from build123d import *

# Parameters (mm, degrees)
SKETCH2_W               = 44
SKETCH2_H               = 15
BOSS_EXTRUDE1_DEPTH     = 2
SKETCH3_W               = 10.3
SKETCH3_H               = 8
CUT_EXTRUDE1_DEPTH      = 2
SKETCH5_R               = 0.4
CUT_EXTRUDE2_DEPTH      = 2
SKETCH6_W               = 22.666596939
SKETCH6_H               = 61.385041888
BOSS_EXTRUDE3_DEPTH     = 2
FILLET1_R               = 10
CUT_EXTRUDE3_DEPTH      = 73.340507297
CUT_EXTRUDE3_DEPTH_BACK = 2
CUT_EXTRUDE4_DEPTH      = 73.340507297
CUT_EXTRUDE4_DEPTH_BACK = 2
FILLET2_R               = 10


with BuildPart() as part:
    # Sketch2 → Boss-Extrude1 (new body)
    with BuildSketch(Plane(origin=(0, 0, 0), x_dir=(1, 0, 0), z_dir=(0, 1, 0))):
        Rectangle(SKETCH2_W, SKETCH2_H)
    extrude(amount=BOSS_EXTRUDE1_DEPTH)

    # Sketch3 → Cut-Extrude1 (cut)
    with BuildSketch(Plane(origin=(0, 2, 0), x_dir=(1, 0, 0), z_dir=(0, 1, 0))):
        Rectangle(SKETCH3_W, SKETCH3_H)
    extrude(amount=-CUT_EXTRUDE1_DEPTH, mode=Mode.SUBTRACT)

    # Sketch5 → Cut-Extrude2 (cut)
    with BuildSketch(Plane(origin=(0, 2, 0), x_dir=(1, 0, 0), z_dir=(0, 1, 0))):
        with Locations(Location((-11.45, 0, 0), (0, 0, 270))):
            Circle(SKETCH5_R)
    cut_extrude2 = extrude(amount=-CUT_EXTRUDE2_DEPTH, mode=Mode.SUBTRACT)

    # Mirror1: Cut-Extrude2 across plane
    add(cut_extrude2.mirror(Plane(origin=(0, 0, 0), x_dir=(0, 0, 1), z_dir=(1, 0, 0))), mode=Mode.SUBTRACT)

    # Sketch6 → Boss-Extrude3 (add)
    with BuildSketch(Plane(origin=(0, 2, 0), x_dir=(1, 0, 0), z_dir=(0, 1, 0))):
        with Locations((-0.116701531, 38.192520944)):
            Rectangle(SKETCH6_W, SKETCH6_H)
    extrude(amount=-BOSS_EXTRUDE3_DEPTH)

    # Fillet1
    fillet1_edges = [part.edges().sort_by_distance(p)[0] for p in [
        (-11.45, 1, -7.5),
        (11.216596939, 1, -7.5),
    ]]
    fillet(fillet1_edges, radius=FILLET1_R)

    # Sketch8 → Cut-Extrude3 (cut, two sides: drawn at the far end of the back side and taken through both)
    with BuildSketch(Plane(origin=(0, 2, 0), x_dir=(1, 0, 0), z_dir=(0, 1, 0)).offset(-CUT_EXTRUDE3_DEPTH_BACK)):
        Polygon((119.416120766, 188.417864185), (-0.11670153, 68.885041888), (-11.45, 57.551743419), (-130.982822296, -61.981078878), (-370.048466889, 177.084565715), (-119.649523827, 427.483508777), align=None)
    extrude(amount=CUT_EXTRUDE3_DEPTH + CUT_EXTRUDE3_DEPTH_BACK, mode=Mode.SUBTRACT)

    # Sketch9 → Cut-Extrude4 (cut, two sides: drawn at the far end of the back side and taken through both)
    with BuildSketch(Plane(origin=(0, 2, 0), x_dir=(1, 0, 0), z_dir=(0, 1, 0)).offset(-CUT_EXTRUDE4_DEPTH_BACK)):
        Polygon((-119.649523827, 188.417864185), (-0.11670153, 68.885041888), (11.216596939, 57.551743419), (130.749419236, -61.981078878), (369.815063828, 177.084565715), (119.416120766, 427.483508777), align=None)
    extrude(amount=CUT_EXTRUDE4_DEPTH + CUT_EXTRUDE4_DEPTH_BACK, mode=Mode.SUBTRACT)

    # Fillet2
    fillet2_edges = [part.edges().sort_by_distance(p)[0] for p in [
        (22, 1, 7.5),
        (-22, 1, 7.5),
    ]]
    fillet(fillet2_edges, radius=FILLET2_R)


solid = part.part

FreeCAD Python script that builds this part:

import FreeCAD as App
import Part
import Sketcher

V = App.Vector
Q = App.Units.Quantity


def edges_at(feature, points):
    """Names of the edges that pass closest to the given points."""
    edges = feature.Shape.Edges
    near = lambda p: min(range(len(edges)), key=lambda i: edges[i].distToShape(Part.Vertex(*p))[0])
    return sorted({f"Edge{near(p) + 1}" for p in points})

doc = App.newDocument("Part")
params = doc.addObject("Spreadsheet::Sheet", "Params")
for row, (alias, value) in enumerate([
    ("sketch1_width", "44 mm"),
    ("sketch1_height", "15 mm"),
    ("pad1_length", "2 mm"),
    ("sketch2_height", "8 mm"),
    ("sketch2_width", "10.3 mm"),
    ("pocket1_length", "2 mm"),
    ("sketch3_diameter", "0.8 mm"),
    ("pocket2_length", "2 mm"),
    ("pad2_length", "2 mm"),
    ("fillet_radius", "10 mm"),
    ("fillet2_radius", "10 mm"),
], start=1):
    params.set(f"A{row}", alias)
    params.set(f"B{row}", "=" + value)
    params.setAlias(f"B{row}", alias)

body = doc.addObject("PartDesign::Body", "Body")

sketch1 = body.newObject("Sketcher::SketchObject", "Sketch")
sketch1.AttachmentSupport = (doc.getObject("XZ_Plane"), [""])
sketch1.MapMode = "FlatFace"
sketch1.addGeometry([
    Part.LineSegment(V(-22, -7.5, 0), V(-22, 7.5, 0)),
    Part.LineSegment(V(-22, 7.5, 0), V(22, 7.5, 0)),
    Part.LineSegment(V(22, 7.5, 0), V(22, -7.5, 0)),
    Part.LineSegment(V(22, -7.5, 0), V(-22, -7.5, 0)),
], False)
sketch1.addConstraint([
    Sketcher.Constraint("Coincident", 0, 2, 1, 1),
    Sketcher.Constraint("Coincident", 1, 2, 2, 1),
    Sketcher.Constraint("Coincident", 2, 2, 3, 1),
    Sketcher.Constraint("Coincident", 3, 2, 0, 1),
    Sketcher.Constraint("Vertical", 0),
    Sketcher.Constraint("Horizontal", 1),
    Sketcher.Constraint("Vertical", 2),
    Sketcher.Constraint("Horizontal", 3),
    Sketcher.Constraint("Symmetric", 0, 2, 2, 2, -1, 1),
    Sketcher.Constraint("DistanceX", 1, 1, 1, 2, 44.0),
    Sketcher.Constraint("DistanceY", 0, 1, 0, 2, 15.0),
])
sketch1.setExpression("Constraints[9]", "Params.sketch1_width")
sketch1.setExpression("Constraints[10]", "Params.sketch1_height")
pad1 = body.newObject("PartDesign::Pad", "Pad")
pad1.Profile = sketch1
pad1.setExpression("Length", "Params.pad1_length")
pad1.Reversed = True

sketch2 = body.newObject("Sketcher::SketchObject", "Sketch001")
sketch2.AttachmentSupport = (doc.getObject("XZ_Plane"), [""])
sketch2.MapMode = "FlatFace"
sketch2.AttachmentOffset = App.Placement(V(0, 0, -2), App.Rotation())
sketch2.addGeometry([
    Part.LineSegment(V(-5.15, -4, 0), V(-5.15, 4, 0)),
    Part.LineSegment(V(-5.15, 4, 0), V(5.15, 4, 0)),
    Part.LineSegment(V(5.15, 4, 0), V(5.15, -4, 0)),
    Part.LineSegment(V(5.15, -4, 0), V(-5.15, -4, 0)),
], False)
sketch2.addConstraint([
    Sketcher.Constraint("Coincident", 0, 2, 1, 1),
    Sketcher.Constraint("Coincident", 1, 2, 2, 1),
    Sketcher.Constraint("Coincident", 2, 2, 3, 1),
    Sketcher.Constraint("Coincident", 3, 2, 0, 1),
    Sketcher.Constraint("Vertical", 0),
    Sketcher.Constraint("Horizontal", 1),
    Sketcher.Constraint("Vertical", 2),
    Sketcher.Constraint("Horizontal", 3),
    Sketcher.Constraint("Symmetric", 0, 2, 2, 2, -1, 1),
    Sketcher.Constraint("DistanceY", 0, 1, 0, 2, 8.0),
    Sketcher.Constraint("DistanceX", 1, 1, 1, 2, 10.3),
])
sketch2.setExpression("Constraints[9]", "Params.sketch2_height")
sketch2.setExpression("Constraints[10]", "Params.sketch2_width")
pocket1 = body.newObject("PartDesign::Pocket", "Pocket")
pocket1.Profile = sketch2
pocket1.setExpression("Length", "Params.pocket1_length")
pocket1.Reversed = True

sketch3 = body.newObject("Sketcher::SketchObject", "Sketch002")
sketch3.AttachmentSupport = (doc.getObject("XZ_Plane"), [""])
sketch3.MapMode = "FlatFace"
sketch3.AttachmentOffset = App.Placement(V(0, 0, -2), App.Rotation())
sketch3.addGeometry(Part.Circle(V(-11.45, 0, 0), V(0, 0, 1), 0.4), False)
sketch3.addConstraint([
    Sketcher.Constraint("PointOnObject", 0, 3, -1),
    Sketcher.Constraint("Diameter", 0, 0.8),
    Sketcher.Constraint("DistanceX", 0, 3, -1, 1, 11.45),
])
sketch3.setExpression("Constraints[1]", "Params.sketch3_diameter")
pocket2 = body.newObject("PartDesign::Pocket", "Pocket001")
pocket2.Profile = sketch3
pocket2.setExpression("Length", "Params.pocket2_length")
pocket2.Reversed = True
doc.recompute()

mirrored = body.newObject("PartDesign::Mirrored", "Mirrored")
mirrored.Originals = [pocket2]
mirrored.MirrorPlane = (doc.getObject("YZ_Plane"), [""])
body.Tip = mirrored

sketch4 = body.newObject("Sketcher::SketchObject", "Sketch003")
sketch4.AttachmentSupport = (doc.getObject("XZ_Plane"), [""])
sketch4.MapMode = "FlatFace"
sketch4.AttachmentOffset = App.Placement(V(0, 0, -2), App.Rotation())
sketch4.addGeometry([
    Part.LineSegment(V(-11.45, -68.885042, 0), V(-11.45, -7.5, 0)),
    Part.LineSegment(V(-11.45, -7.5, 0), V(11.216597, -7.5, 0)),
    Part.LineSegment(V(11.216597, -7.5, 0), V(11.216597, -68.885042, 0)),
    Part.LineSegment(V(11.216597, -68.885042, 0), V(-11.45, -68.885042, 0)),
], False)
sketch4.addConstraint([
    Sketcher.Constraint("Coincident", 0, 2, 1, 1),
    Sketcher.Constraint("Coincident", 1, 2, 2, 1),
    Sketcher.Constraint("Coincident", 2, 2, 3, 1),
    Sketcher.Constraint("Coincident", 3, 2, 0, 1),
    Sketcher.Constraint("Vertical", 0),
    Sketcher.Constraint("Horizontal", 1),
    Sketcher.Constraint("Vertical", 2),
    Sketcher.Constraint("Horizontal", 3),
    Sketcher.Constraint("DistanceY", 0, 2, -1, 1, 7.5),
    Sketcher.Constraint("DistanceX", 0, 2, -1, 1, 11.45),
    Sketcher.Constraint("DistanceY", 0, 1, 0, 2, 61.385042),
    Sketcher.Constraint("DistanceX", 1, 1, 1, 2, 22.666597),
])
pad2 = body.newObject("PartDesign::Pad", "Pad001")
pad2.Profile = sketch4
pad2.setExpression("Length", "Params.pad2_length")
doc.recompute()

fillet = body.newObject("PartDesign::Fillet", "Fillet")
fillet.Base = (pad2, edges_at(pad2, [(-11.45, 1, -7.5), (11.217, 1, -7.5)]))
fillet.setExpression("Radius", "Params.fillet_radius")

sketch5 = body.newObject("Sketcher::SketchObject", "Sketch004")
sketch5.AttachmentSupport = (doc.getObject("XZ_Plane"), [""])
sketch5.MapMode = "FlatFace"
sketch5.AttachmentOffset = App.Placement(V(0, 0, -2), App.Rotation())
sketch5.addGeometry([
    Part.LineSegment(V(-0.116702, -68.885042, 0), V(119.416121, -188.417864, 0)),
    Part.LineSegment(V(119.416121, -188.417864, 0), V(-119.649524, -427.483509, 0)),
    Part.LineSegment(V(-119.649524, -427.483509, 0), V(-370.048467, -177.084566, 0)),
    Part.LineSegment(V(-370.048467, -177.084566, 0), V(-130.982822, 61.981079, 0)),
    Part.LineSegment(V(-130.982822, 61.981079, 0), V(-11.45, -57.551743, 0)),
    Part.LineSegment(V(-11.45, -57.551743, 0), V(-0.116702, -68.885042, 0)),
], False)
sketch5.addConstraint([
    Sketcher.Constraint("Coincident", 0, 2, 1, 1),
    Sketcher.Constraint("Coincident", 1, 2, 2, 1),
    Sketcher.Constraint("Coincident", 2, 2, 3, 1),
    Sketcher.Constraint("Coincident", 3, 2, 4, 1),
    Sketcher.Constraint("Coincident", 4, 2, 5, 1),
    Sketcher.Constraint("Coincident", 5, 2, 0, 1),
    Sketcher.Constraint("Perpendicular", 0, 1),
    Sketcher.Constraint("Perpendicular", 1, 2),
    Sketcher.Constraint("Perpendicular", 2, 3),
    Sketcher.Constraint("Perpendicular", 3, 4),
    Sketcher.Constraint("Parallel", 4, 5),
    Sketcher.Constraint("Equal", 0, 4),
    Sketcher.Constraint("Angle", 0, Q("-45 deg")),
    Sketcher.Constraint("DistanceX", 4, 2, -1, 1, 11.45),
    Sketcher.Constraint("DistanceX", 5, 2, -1, 1, 0.116702),
    Sketcher.Constraint("DistanceY", 0, 2, 2, 2, 11.333298),
    Sketcher.Constraint("Distance", 0, 169.044938),
    Sketcher.Constraint("DistanceY", 1, 2, -1, 1, 427.483509),
])
pocket3 = body.newObject("PartDesign::Pocket", "Pocket002")
pocket3.Profile = sketch5
pocket3.Type = "ThroughAll"
pocket3.Midplane = True

sketch6 = body.newObject("Sketcher::SketchObject", "Sketch005")
sketch6.AttachmentSupport = (doc.getObject("XZ_Plane"), [""])
sketch6.MapMode = "FlatFace"
sketch6.AttachmentOffset = App.Placement(V(0, 0, -2), App.Rotation())
sketch6.addGeometry([
    Part.LineSegment(V(-119.649524, -188.417864, 0), V(130.749419, 61.981079, 0)),
    Part.LineSegment(V(130.749419, 61.981079, 0), V(369.815064, -177.084566, 0)),
    Part.LineSegment(V(369.815064, -177.084566, 0), V(119.416121, -427.483509, 0)),
    Part.LineSegment(V(119.416121, -427.483509, 0), V(-119.649524, -188.417864, 0)),
], False)
sketch6.addConstraint([
    Sketcher.Constraint("Coincident", 0, 2, 1, 1),
    Sketcher.Constraint("Coincident", 1, 2, 2, 1),
    Sketcher.Constraint("Coincident", 2, 2, 3, 1),
    Sketcher.Constraint("Coincident", 3, 2, 0, 1),
    Sketcher.Constraint("Perpendicular", 0, 1),
    Sketcher.Constraint("Perpendicular", 1, 2),
    Sketcher.Constraint("Perpendicular", 2, 3),
    Sketcher.Constraint("Angle", 0, Q("45 deg")),
    Sketcher.Constraint("DistanceX", 2, 2, 0, 2, 11.333298),
    Sketcher.Constraint("Distance", 0, 354.117581),
    Sketcher.Constraint("DistanceX", -1, 1, 0, 2, 130.749419),
    Sketcher.Constraint("DistanceY", -1, 1, 0, 2, 61.981079),
])
pocket4 = body.newObject("PartDesign::Pocket", "Pocket003")
pocket4.Profile = sketch6
pocket4.Type = "ThroughAll"
pocket4.Midplane = True
doc.recompute()

fillet2 = body.newObject("PartDesign::Fillet", "Fillet001")
fillet2.Base = (pocket4, edges_at(pocket4, [(22, 1, 7.5), (-22, 1, 7.5)]))
fillet2.setExpression("Radius", "Params.fillet2_radius")

doc.recompute()
